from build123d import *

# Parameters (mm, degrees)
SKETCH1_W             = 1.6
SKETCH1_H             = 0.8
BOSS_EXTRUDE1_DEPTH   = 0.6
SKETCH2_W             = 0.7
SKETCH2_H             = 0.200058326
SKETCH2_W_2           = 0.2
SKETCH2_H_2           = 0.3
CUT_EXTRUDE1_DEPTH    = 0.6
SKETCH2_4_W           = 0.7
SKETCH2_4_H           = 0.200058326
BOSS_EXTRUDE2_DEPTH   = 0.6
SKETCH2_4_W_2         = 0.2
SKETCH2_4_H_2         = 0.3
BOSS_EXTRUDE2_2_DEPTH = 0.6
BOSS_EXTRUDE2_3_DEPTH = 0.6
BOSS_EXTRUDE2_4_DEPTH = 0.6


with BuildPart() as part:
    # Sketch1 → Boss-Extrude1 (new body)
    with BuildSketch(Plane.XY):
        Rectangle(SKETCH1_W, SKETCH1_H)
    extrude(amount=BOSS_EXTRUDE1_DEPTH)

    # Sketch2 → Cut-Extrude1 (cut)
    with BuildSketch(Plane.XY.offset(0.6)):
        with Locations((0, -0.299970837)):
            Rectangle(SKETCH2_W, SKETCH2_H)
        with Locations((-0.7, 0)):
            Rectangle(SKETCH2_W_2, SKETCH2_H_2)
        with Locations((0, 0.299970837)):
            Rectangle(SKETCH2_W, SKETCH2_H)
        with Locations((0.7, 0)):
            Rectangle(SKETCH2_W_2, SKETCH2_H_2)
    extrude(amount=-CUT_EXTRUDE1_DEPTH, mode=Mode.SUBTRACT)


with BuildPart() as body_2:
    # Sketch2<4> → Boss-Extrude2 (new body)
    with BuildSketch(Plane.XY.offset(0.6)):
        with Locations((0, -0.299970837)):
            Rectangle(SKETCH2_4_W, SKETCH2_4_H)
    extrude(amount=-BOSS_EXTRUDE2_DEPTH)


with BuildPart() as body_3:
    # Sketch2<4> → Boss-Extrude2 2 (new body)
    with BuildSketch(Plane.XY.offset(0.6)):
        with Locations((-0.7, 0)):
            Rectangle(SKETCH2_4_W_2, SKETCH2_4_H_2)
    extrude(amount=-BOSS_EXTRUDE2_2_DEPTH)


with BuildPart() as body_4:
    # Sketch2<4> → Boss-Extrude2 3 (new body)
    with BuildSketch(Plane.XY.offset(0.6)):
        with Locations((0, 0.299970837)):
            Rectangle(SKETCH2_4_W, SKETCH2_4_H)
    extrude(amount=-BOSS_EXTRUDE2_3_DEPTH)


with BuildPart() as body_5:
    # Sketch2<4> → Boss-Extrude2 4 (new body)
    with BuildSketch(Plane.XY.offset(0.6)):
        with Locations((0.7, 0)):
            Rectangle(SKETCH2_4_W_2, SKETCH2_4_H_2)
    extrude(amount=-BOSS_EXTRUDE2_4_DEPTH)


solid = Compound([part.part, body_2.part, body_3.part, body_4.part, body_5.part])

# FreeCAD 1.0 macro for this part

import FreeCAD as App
import Part
import Sketcher


def add_polygon(sketch, points):
    """Adds a closed chain of lines whose ends are joined by coincident constraints."""
    first, n = sketch.GeometryCount, len(points)
    for a, b in zip(points, points[1:] + points[:1]):
        sketch.addGeometry(Part.LineSegment(App.Vector(*a, 0), App.Vector(*b, 0)), False)
    for i in range(n):
        sketch.addConstraint(Sketcher.Constraint("Coincident", first + i, 2, first + (i + 1) % n, 1))

doc = App.newDocument("Part")
params = doc.addObject("Spreadsheet::Sheet", "Params")
for row, (alias, value) in enumerate([
    ("sketch1_width", "1.6 mm"),
    ("sketch1_height", "0.8 mm"),
    ("pad1_length", "0.6 mm"),
    ("sketch2_width", "0.7 mm"),
    ("sketch2_width2", "0.2 mm"),
    ("sketch2_height", "0.3 mm"),
    ("pocket1_length", "0.6 mm"),
    ("sketch3_width", "0.7 mm"),
    ("pad2_length", "0.6 mm"),
    ("sketch4_width", "0.2 mm"),
    ("sketch4_height", "0.3 mm"),
    ("pad3_length", "0.6 mm"),
    ("sketch5_width", "0.7 mm"),
    ("pad4_length", "0.6 mm"),
    ("sketch6_width", "0.2 mm"),
    ("sketch6_height", "0.3 mm"),
    ("pad5_length", "0.6 mm"),
], start=1):
    params.set(f"A{row}", alias)
    params.set(f"B{row}", "=" + value)
    params.setAlias(f"B{row}", alias)

body = doc.addObject("PartDesign::Body", "Body")

# Sketch on XY plane
sketch1 = body.newObject("Sketcher::SketchObject", "Sketch")
sketch1.AttachmentSupport = (doc.getObject("XY_Plane"), [""])
sketch1.MapMode = "FlatFace"
add_polygon(sketch1, [(-0.8, 0.4), (-0.8, -0.4), (0.8, -0.4), (0.8, 0.4)])  # lines 0-3
sketch1.addConstraint([
    Sketcher.Constraint("Vertical", 0),
    Sketcher.Constraint("Horizontal", 1),
    Sketcher.Constraint("Vertical", 2),
    Sketcher.Constraint("Horizontal", 3),
    Sketcher.Constraint("Symmetric", 0, 2, 2, 2, -1, 1),
    Sketcher.Constraint("DistanceX", 1, 1, 1, 2, 1.6),
    Sketcher.Constraint("DistanceY", 0, 2, 0, 1, 0.8),
])
sketch1.setExpression("Constraints[9]", "Params.sketch1_width")
sketch1.setExpression("Constraints[10]", "Params.sketch1_height")
pad1 = body.newObject("PartDesign::Pad", "Pad")
pad1.Profile = sketch1
pad1.setExpression("Length", "Params.pad1_length")

# Sketch on XY plane
sketch2 = body.newObject("Sketcher::SketchObject", "Sketch001")
sketch2.AttachmentSupport = (doc.getObject("XY_Plane"), [""])
sketch2.MapMode = "FlatFace"
sketch2.AttachmentOffset = App.Placement(App.Vector(0, 0, 0.6), App.Rotation())
add_polygon(sketch2, [(-0.35, -0.199942), (-0.35, -0.4), (0.35, -0.4), (0.35, -0.199942)])  # lines 0-3
add_polygon(sketch2, [(-0.8, 0.15), (-0.8, -0.15), (-0.6, -0.15), (-0.6, 0.15)])  # lines 4-7
add_polygon(sketch2, [(-0.35, 0.4), (-0.35, 0.199942), (0.35, 0.199942), (0.35, 0.4)])  # lines 8-11
add_polygon(sketch2, [(0.6, 0.15), (0.6, -0.15), (0.8, -0.15), (0.8, 0.15)])  # lines 12-15
sketch2.addConstraint([
    Sketcher.Constraint("Vertical", 0),
    Sketcher.Constraint("Horizontal", 1),
    Sketcher.Constraint("Vertical", 2),
    Sketcher.Constraint("Horizontal", 3),
    Sketcher.Constraint("Vertical", 4),
    Sketcher.Constraint("Horizontal", 5),
    Sketcher.Constraint("Vertical", 6),
    Sketcher.Constraint("Horizontal", 7),
    Sketcher.Constraint("Vertical", 8),
    Sketcher.Constraint("Horizontal", 9),
    Sketcher.Constraint("Vertical", 10),
    Sketcher.Constraint("Horizontal", 11),
    Sketcher.Constraint("Vertical", 12),
    Sketcher.Constraint("Horizontal", 13),
    Sketcher.Constraint("Vertical", 14),
    Sketcher.Constraint("Horizontal", 15),
    Sketcher.Constraint("Symmetric", 2, 2, 8, 2, -1, 1),
    Sketcher.Constraint("Symmetric", 0, 2, 10, 2, -1, 1),
    Sketcher.Constraint("Symmetric", 6, 2, 12, 2, -1, 1),
    Sketcher.Constraint("Symmetric", 4, 2, 14, 2, -1, 1),
    Sketcher.Constraint("Horizontal", 5, 2, 12, 2),
    Sketcher.Constraint("Vertical", 3, 2, 8, 2),
    Sketcher.Constraint("DistanceX", 1, 1, 1, 2, 0.7),
    Sketcher.Constraint("DistanceX", 5, 1, 5, 2, 0.2),
    Sketcher.Constraint("DistanceY", 4, 2, 4, 1, 0.3),
    Sketcher.Constraint("DistanceY", 0, 2, -1, 1, 0.4),
    Sketcher.Constraint("DistanceX", 4, 2, -1, 1, 0.8),
    Sketcher.Constraint("DistanceY", 0, 2, 0, 1, 0.200058),
])
sketch2.setExpression("Constraints[38]", "Params.sketch2_width")
sketch2.setExpression("Constraints[39]", "Params.sketch2_width2")
sketch2.setExpression("Constraints[40]", "Params.sketch2_height")
pocket1 = body.newObject("PartDesign::Pocket", "Pocket")
pocket1.Profile = sketch2
pocket1.setExpression("Length", "Params.pocket1_length")
body2 = doc.addObject("PartDesign::Body", "Body001")

# Sketch on XY plane
sketch3 = body2.newObject("Sketcher::SketchObject", "Sketch002")
sketch3.AttachmentSupport = (doc.getObject("XY_Plane001"), [""])
sketch3.MapMode = "FlatFace"
sketch3.AttachmentOffset = App.Placement(App.Vector(0, 0, 0.6), App.Rotation())
add_polygon(sketch3, [(-0.35, -0.199942), (-0.35, -0.4), (0.35, -0.4), (0.35, -0.199942)])  # lines 0-3
sketch3.addConstraint([
    Sketcher.Constraint("Vertical", 0),
    Sketcher.Constraint("Horizontal", 1),
    Sketcher.Constraint("Vertical", 2),
    Sketcher.Constraint("Horizontal", 3),
    Sketcher.Constraint("DistanceX", 1, 1, 1, 2, 0.7),
    Sketcher.Constraint("DistanceY", 0, 2, -1, 1, 0.4),
    Sketcher.Constraint("DistanceX", 0, 2, -1, 1, 0.35),
    Sketcher.Constraint("DistanceY", 0, 2, 0, 1, 0.200058),
])
sketch3.setExpression("Constraints[8]", "Params.sketch3_width")
pad2 = body2.newObject("PartDesign::Pad", "Pad001")
pad2.Profile = sketch3
pad2.setExpression("Length", "Params.pad2_length")
pad2.Reversed = True
body3 = doc.addObject("PartDesign::Body", "Body002")

# Sketch on XY plane
sketch4 = body3.newObject("Sketcher::SketchObject", "Sketch003")
sketch4.AttachmentSupport = (doc.getObject("XY_Plane002"), [""])
sketch4.MapMode = "FlatFace"
sketch4.AttachmentOffset = App.Placement(App.Vector(0, 0, 0.6), App.Rotation())
add_polygon(sketch4, [(-0.8, 0.15), (-0.8, -0.15), (-0.6, -0.15), (-0.6, 0.15)])  # lines 0-3
sketch4.addConstraint([
    Sketcher.Constraint("Vertical", 0),
    Sketcher.Constraint("Horizontal", 1),
    Sketcher.Constraint("Vertical", 2),
    Sketcher.Constraint("Horizontal", 3),
    Sketcher.Constraint("DistanceX", 1, 1, 1, 2, 0.2),
    Sketcher.Constraint("DistanceY", 0, 2, 0, 1, 0.3),
    Sketcher.Constraint("DistanceX", 0, 2, -1, 1, 0.8),
    Sketcher.Constraint("DistanceY", 0, 2, -1, 1, 0.15),
])
sketch4.setExpression("Constraints[8]", "Params.sketch4_width")
sketch4.setExpression("Constraints[9]", "Params.sketch4_height")
pad3 = body3.newObject("PartDesign::Pad", "Pad002")
pad3.Profile = sketch4
pad3.setExpression("Length", "Params.pad3_length")
pad3.Reversed = True
body4 = doc.addObject("PartDesign::Body", "Body003")

# Sketch on XY plane
sketch5 = body4.newObject("Sketcher::SketchObject", "Sketch004")
sketch5.AttachmentSupport = (doc.getObject("XY_Plane003"), [""])
sketch5.MapMode = "FlatFace"
sketch5.AttachmentOffset = App.Placement(App.Vector(0, 0, 0.6), App.Rotation())
add_polygon(sketch5, [(-0.35, 0.4), (-0.35, 0.199942), (0.35, 0.199942), (0.35, 0.4)])  # lines 0-3
sketch5.addConstraint([
    Sketcher.Constraint("Vertical", 0),
    Sketcher.Constraint("Horizontal", 1),
    Sketcher.Constraint("Vertical", 2),
    Sketcher.Constraint("Horizontal", 3),
    Sketcher.Constraint("DistanceX", 1, 1, 1, 2, 0.7),
    Sketcher.Constraint("DistanceY", -1, 1, 2, 2, 0.4),
    Sketcher.Constraint("DistanceX", 0, 2, -1, 1, 0.35),
    Sketcher.Constraint("DistanceY", 0, 2, 0, 1, 0.200058),
])
sketch5.setExpression("Constraints[8]", "Params.sketch5_width")
pad4 = body4.newObject("PartDesign::Pad", "Pad003")
pad4.Profile = sketch5
pad4.setExpression("Length", "Params.pad4_length")
pad4.Reversed = True
body5 = doc.addObject("PartDesign::Body", "Body004")

# Sketch on XY plane
sketch6 = body5.newObject("Sketcher::SketchObject", "Sketch005")
sketch6.AttachmentSupport = (doc.getObject("XY_Plane004"), [""])
sketch6.MapMode = "FlatFace"
sketch6.AttachmentOffset = App.Placement(App.Vector(0, 0, 0.6), App.Rotation())
add_polygon(sketch6, [(0.6, 0.15), (0.6, -0.15), (0.8, -0.15), (0.8, 0.15)])  # lines 0-3
sketch6.addConstraint([
    Sketcher.Constraint("Vertical", 0),
    Sketcher.Constraint("Horizontal", 1),
    Sketcher.Constraint("Vertical", 2),
    Sketcher.Constraint("Horizontal", 3),
    Sketcher.Constraint("DistanceX", 1, 1, 1, 2, 0.2),
    Sketcher.Constraint("DistanceY", 0, 2, 0, 1, 0.3),
    Sketcher.Constraint("DistanceX", -1, 1, 0, 2, 0.6),
    Sketcher.Constraint("DistanceY", 0, 2, -1, 1, 0.15),
])
sketch6.setExpression("Constraints[8]", "Params.sketch6_width")
sketch6.setExpression("Constraints[9]", "Params.sketch6_height")
pad5 = body5.newObject("PartDesign::Pad", "Pad004")
pad5.Profile = sketch6
pad5.setExpression("Length", "Params.pad5_length")
pad5.Reversed = True

doc.recompute()
